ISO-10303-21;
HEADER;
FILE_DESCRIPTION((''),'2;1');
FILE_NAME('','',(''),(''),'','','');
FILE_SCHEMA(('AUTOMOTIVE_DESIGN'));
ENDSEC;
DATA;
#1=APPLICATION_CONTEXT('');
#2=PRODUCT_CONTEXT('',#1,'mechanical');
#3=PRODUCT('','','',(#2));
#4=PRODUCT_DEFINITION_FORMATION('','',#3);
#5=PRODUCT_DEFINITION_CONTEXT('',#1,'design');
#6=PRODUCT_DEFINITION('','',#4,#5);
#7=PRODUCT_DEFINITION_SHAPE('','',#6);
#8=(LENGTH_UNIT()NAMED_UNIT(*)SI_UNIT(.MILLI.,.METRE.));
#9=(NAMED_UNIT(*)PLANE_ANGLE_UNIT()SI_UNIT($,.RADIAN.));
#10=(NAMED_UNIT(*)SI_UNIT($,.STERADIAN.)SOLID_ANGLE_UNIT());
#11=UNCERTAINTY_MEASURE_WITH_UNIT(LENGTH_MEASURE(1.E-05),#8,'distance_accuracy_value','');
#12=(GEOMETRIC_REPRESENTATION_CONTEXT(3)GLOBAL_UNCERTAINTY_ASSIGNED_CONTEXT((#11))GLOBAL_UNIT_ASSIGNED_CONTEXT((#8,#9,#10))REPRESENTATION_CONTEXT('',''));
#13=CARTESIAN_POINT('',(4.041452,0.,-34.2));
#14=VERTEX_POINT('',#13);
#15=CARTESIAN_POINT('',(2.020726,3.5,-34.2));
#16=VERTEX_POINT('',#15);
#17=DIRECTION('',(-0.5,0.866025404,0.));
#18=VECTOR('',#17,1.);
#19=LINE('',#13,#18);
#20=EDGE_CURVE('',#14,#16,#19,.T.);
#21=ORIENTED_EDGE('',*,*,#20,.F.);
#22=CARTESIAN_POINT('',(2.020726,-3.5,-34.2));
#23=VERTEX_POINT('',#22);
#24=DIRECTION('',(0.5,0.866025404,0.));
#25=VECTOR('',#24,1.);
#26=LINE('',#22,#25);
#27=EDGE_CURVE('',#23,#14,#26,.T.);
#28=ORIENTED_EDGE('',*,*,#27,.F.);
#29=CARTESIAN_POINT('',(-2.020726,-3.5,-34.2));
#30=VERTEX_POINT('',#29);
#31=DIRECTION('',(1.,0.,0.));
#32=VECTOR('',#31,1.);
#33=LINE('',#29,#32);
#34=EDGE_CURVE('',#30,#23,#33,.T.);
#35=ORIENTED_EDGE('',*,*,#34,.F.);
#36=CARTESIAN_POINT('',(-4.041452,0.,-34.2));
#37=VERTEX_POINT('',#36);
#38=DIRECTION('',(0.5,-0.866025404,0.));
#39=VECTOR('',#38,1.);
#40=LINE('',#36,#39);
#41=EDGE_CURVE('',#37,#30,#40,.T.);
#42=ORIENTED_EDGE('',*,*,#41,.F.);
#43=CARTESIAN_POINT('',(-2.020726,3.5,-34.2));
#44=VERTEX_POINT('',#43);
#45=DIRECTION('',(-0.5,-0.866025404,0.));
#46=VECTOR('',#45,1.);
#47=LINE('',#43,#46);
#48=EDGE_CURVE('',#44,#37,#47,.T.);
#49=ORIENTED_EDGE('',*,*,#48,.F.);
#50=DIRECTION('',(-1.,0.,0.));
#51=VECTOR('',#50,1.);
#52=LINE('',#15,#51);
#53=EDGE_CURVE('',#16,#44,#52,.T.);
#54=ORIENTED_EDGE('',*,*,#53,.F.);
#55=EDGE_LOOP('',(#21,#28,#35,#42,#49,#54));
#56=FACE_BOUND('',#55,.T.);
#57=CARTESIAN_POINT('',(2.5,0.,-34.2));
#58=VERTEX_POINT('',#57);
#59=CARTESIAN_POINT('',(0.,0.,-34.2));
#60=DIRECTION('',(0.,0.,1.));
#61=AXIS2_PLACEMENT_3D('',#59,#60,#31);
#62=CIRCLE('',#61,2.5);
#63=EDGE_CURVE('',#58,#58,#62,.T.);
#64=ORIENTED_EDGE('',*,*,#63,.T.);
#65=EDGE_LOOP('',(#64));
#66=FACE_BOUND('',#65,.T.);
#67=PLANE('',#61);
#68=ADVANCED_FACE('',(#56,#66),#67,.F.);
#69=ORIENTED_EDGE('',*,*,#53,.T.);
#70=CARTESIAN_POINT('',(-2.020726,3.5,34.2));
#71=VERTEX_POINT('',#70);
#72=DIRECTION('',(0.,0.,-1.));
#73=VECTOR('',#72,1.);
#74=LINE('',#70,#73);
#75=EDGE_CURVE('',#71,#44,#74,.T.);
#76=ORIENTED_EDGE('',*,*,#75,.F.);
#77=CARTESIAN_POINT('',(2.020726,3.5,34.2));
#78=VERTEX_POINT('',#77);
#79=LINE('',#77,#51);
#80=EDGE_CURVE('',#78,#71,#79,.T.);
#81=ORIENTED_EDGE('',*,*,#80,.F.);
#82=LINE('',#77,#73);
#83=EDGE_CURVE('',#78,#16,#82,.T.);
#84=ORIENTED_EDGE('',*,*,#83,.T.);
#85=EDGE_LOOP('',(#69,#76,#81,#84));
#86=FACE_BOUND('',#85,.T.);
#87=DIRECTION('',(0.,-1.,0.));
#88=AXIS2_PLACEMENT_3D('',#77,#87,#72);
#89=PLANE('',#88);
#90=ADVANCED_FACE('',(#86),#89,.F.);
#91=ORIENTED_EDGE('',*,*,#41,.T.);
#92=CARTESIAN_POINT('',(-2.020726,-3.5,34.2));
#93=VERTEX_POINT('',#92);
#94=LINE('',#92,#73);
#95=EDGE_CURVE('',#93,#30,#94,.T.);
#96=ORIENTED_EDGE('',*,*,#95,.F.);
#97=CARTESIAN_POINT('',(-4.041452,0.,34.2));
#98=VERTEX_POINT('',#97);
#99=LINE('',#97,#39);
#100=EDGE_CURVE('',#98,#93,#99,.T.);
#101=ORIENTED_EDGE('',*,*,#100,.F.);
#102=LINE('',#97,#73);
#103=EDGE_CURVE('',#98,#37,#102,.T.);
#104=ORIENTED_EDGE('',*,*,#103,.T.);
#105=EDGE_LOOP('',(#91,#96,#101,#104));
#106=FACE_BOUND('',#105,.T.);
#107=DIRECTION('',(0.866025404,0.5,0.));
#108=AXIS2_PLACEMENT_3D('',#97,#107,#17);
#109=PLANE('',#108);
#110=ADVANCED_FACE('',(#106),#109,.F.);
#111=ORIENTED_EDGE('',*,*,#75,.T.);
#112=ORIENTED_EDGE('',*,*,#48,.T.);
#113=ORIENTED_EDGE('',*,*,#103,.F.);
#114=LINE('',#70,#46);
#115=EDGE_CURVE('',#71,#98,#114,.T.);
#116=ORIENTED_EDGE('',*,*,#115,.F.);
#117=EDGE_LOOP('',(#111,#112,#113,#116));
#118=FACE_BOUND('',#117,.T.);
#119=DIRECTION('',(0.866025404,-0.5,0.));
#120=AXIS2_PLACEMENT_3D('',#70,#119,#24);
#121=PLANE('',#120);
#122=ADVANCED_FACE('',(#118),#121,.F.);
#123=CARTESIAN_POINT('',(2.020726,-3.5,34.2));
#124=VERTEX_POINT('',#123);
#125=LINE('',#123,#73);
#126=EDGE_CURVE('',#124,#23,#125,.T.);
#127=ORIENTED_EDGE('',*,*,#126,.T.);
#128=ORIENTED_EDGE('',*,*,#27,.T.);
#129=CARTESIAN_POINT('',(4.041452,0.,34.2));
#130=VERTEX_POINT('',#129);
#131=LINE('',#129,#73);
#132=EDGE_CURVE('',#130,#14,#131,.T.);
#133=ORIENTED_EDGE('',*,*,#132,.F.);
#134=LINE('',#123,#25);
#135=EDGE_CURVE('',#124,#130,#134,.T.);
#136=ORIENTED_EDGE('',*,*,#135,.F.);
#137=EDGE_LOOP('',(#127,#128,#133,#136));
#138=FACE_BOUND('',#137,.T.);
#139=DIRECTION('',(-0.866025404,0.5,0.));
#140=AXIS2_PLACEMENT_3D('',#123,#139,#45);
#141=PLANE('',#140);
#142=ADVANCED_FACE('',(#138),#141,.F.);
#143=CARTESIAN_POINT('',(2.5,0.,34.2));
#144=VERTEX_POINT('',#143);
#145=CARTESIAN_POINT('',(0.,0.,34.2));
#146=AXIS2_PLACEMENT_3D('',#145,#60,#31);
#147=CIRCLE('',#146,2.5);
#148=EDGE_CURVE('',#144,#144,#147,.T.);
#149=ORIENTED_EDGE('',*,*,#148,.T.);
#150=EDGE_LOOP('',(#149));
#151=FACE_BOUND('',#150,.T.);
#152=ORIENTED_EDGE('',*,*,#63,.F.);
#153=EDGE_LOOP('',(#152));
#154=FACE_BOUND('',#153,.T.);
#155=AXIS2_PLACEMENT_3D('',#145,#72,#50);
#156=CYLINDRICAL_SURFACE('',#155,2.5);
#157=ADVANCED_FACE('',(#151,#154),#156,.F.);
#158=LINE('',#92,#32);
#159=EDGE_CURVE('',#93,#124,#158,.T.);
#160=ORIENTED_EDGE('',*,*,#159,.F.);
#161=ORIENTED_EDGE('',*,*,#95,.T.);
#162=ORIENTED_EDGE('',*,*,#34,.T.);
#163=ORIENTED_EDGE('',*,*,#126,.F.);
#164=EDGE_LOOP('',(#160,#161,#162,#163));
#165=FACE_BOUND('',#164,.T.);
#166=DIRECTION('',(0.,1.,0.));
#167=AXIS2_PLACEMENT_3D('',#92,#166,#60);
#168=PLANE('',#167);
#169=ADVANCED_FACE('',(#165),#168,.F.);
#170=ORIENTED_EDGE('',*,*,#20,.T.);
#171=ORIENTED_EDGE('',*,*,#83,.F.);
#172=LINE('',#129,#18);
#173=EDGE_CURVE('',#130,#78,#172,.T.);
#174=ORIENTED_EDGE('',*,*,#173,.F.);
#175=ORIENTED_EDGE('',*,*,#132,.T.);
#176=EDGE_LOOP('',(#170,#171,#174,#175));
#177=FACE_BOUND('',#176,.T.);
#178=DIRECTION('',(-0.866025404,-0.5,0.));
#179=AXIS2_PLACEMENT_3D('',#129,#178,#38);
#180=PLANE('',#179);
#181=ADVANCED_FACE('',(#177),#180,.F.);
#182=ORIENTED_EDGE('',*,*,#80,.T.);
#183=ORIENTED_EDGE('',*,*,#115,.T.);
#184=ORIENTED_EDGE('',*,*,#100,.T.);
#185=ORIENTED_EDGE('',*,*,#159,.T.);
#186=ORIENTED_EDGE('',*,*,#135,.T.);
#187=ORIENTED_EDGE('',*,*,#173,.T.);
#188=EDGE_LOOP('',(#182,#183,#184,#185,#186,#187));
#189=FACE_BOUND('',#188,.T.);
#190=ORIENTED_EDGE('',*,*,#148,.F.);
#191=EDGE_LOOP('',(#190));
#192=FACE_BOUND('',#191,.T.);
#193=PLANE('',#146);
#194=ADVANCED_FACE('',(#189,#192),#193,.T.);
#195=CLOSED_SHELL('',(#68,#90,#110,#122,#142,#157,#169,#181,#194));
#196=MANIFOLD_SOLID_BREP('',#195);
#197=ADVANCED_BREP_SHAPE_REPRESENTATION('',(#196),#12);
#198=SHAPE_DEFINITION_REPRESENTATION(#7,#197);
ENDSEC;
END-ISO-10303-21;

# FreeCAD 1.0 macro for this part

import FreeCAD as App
import Part
import Sketcher

V = App.Vector
Q = App.Units.Quantity

doc = App.newDocument("Part")
params = doc.addObject("Spreadsheet::Sheet", "Params")
for row, (alias, value) in enumerate([
    ("sketch1_diameter", "5 mm"),
    ("pad1_length", "68.4 mm"),
], start=1):
    params.set(f"A{row}", alias)
    params.set(f"B{row}", "=" + value)
    params.setAlias(f"B{row}", alias)

body = doc.addObject("PartDesign::Body", "Body")

# Sketch on XY plane
sketch1 = doc.addObject("Sketcher::SketchObject", "Sketch")
body.addObject(sketch1)
sketch1.AttachmentSupport = (doc.XY_Plane, [""])
sketch1.MapMode = "FlatFace"
sketch1.addGeometry([
    Part.LineSegment(V(-4, 0, 0), V(-2, -3.5, 0)),  # 0
    Part.LineSegment(V(-2, -3.5, 0), V(2, -3.5, 0)),  # 1
    Part.LineSegment(V(2, -3.5, 0), V(4, 0, 0)),  # 2
    Part.LineSegment(V(4, 0, 0), V(2, 3.5, 0)),  # 3
    Part.LineSegment(V(2, 3.5, 0), V(-2, 3.5, 0)),  # 4
    Part.LineSegment(V(-2, 3.5, 0), V(-4, 0, 0)),  # 5
    Part.Circle(V(0, 0, 0), V(0, 0, 1), 2.5),  # 6
], False)
sketch1.addConstraint([
    Sketcher.Constraint("Coincident", 0, 2, 1, 1),
    Sketcher.Constraint("Coincident", 1, 2, 2, 1),
    Sketcher.Constraint("Coincident", 2, 2, 3, 1),
    Sketcher.Constraint("Coincident", 3, 2, 4, 1),
    Sketcher.Constraint("Coincident", 4, 2, 5, 1),
    Sketcher.Constraint("Coincident", 5, 2, 0, 1),
    Sketcher.Constraint("Horizontal", 1),
    Sketcher.Constraint("Horizontal", 4),
    Sketcher.Constraint("Coincident", 6, 3, -1, 1),
    Sketcher.Constraint("Symmetric", 0, 2, 3, 2, -1, 1),
    Sketcher.Constraint("Symmetric", 2, 2, 5, 2, -1, 1),
    Sketcher.Constraint("PointOnObject", 2, 2, -1),
    Sketcher.Constraint("Parallel", 2, 5),
    Sketcher.Constraint("Vertical", 1, 2, 3, 2),
    Sketcher.Constraint("Diameter", 6, 5.0),
    Sketcher.Constraint("Angle", 0, Q("-60 deg")),
    Sketcher.Constraint("DistanceY", 1, 2, 3, 2, 7.0),
    Sketcher.Constraint("DistanceX", 1, 1, 1, 2, 4.041452),
])
sketch1.setExpression("Constraints[14]", "Params.sketch1_diameter")
pad1 = doc.addObject("PartDesign::Pad", "Pad")
body.addObject(pad1)
pad1.Profile = sketch1
pad1.setExpression("Length", "Params.pad1_length")
pad1.Midplane = True

doc.recompute()
